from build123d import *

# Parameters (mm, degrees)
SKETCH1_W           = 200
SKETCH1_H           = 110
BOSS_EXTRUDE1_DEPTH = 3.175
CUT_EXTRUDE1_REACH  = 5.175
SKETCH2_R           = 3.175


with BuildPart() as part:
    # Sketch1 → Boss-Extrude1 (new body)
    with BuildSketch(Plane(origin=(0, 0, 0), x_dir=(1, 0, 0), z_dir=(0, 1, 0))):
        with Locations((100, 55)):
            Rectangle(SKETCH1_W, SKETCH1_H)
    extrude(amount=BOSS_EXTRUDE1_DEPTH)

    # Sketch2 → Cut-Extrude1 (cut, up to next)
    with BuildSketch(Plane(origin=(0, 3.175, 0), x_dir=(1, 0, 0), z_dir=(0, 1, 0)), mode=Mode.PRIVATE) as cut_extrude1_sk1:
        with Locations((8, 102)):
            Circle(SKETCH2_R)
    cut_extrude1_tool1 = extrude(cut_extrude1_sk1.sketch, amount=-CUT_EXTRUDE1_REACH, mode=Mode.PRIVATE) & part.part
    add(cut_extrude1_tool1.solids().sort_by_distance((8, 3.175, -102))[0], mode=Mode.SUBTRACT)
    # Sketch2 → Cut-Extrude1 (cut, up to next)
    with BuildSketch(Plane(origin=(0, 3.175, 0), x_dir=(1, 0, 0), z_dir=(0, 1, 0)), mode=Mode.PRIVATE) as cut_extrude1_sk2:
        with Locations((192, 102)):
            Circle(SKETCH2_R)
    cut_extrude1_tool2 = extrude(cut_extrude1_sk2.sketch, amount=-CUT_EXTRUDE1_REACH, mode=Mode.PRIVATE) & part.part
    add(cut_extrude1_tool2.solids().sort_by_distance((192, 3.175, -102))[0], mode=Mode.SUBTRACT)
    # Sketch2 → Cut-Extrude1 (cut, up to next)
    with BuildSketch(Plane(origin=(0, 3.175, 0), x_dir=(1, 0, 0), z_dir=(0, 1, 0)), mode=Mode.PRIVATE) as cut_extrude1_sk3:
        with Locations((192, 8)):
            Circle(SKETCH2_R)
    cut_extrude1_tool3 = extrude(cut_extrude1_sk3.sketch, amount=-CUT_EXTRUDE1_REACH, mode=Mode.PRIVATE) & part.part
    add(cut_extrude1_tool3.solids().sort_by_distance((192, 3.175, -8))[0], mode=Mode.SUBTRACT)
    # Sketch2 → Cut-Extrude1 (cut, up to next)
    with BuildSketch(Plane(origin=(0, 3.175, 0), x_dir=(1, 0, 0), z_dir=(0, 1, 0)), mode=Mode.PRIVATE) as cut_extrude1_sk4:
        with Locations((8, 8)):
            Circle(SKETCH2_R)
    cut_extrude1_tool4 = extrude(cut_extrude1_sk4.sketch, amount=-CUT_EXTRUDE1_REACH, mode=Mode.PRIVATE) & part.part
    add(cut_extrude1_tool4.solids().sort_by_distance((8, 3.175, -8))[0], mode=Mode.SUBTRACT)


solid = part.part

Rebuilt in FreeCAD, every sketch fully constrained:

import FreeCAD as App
import Part
import Sketcher

V = App.Vector
Q = App.Units.Quantity


def add_polygon(sketch, points):
    """Adds a closed chain of lines whose ends are joined by coincident constraints."""
    first, n = sketch.GeometryCount, len(points)
    for a, b in zip(points, points[1:] + points[:1]):
        sketch.addGeometry(Part.LineSegment(App.Vector(*a, 0), App.Vector(*b, 0)), False)
    for i in range(n):
        sketch.addConstraint(Sketcher.Constraint("Coincident", first + i, 2, first + (i + 1) % n, 1))

doc = App.newDocument("Part")
body = doc.addObject("PartDesign::Body", "Body")

# Sketch on XZ plane
sketch1 = doc.addObject("Sketcher::SketchObject", "Sketch")
body.addObject(sketch1)
sketch1.AttachmentSupport = (doc.XZ_Plane, [""])
sketch1.MapMode = "FlatFace"
add_polygon(sketch1, [(0, -110), (0, 0), (200, 0), (200, -110)])  # lines 0-3
sketch1.addConstraint([
    Sketcher.Constraint("Vertical", 0),
    Sketcher.Constraint("Horizontal", 1),
    Sketcher.Constraint("Vertical", 2),
    Sketcher.Constraint("Horizontal", 3),
    Sketcher.Constraint("Coincident", 0, 2, -1, 1),
    Sketcher.Constraint("DistanceX", 1, 1, 1, 2, Q("200 mm")),
    Sketcher.Constraint("DistanceY", 0, 1, 0, 2, Q("110 mm")),
])
pad1 = doc.addObject("PartDesign::Pad", "Pad")
body.addObject(pad1)
pad1.Profile = sketch1
pad1.Length = 3.175
pad1.Reversed = True

# Sketch on XZ plane
sketch2 = doc.addObject("Sketcher::SketchObject", "Sketch001")
body.addObject(sketch2)
sketch2.AttachmentSupport = (doc.XZ_Plane, [""])
sketch2.MapMode = "FlatFace"
sketch2.AttachmentOffset = App.Placement(V(0, 0, -3.175), App.Rotation())
sketch2.addGeometry(Part.Circle(V(8, -102, 0), V(0, 0, 1), 3.2), False)
sketch2.addConstraint([
    Sketcher.Constraint("Diameter", 0, Q("6.35 mm")),
    Sketcher.Constraint("DistanceX", -1, 1, 0, 3, Q("8 mm")),
    Sketcher.Constraint("DistanceY", 0, 3, -1, 1, Q("102 mm")),
])
pocket1 = doc.addObject("PartDesign::Pocket", "Pocket")
body.addObject(pocket1)
pocket1.Profile = sketch2
pocket1.Type = "UpToFirst"
pocket1.Reversed = True

# Sketch on XZ plane
sketch3 = doc.addObject("Sketcher::SketchObject", "Sketch002")
body.addObject(sketch3)
sketch3.AttachmentSupport = (doc.XZ_Plane, [""])
sketch3.MapMode = "FlatFace"
sketch3.AttachmentOffset = App.Placement(V(0, 0, -3.175), App.Rotation())
sketch3.addGeometry(Part.Circle(V(192, -102, 0), V(0, 0, 1), 3.2), False)
sketch3.addConstraint([
    Sketcher.Constraint("Diameter", 0, Q("6.35 mm")),
    Sketcher.Constraint("DistanceX", -1, 1, 0, 3, Q("192 mm")),
    Sketcher.Constraint("DistanceY", 0, 3, -1, 1, Q("102 mm")),
])
pocket2 = doc.addObject("PartDesign::Pocket", "Pocket001")
body.addObject(pocket2)
pocket2.Profile = sketch3
pocket2.Type = "UpToFirst"
pocket2.Reversed = True

# Sketch on XZ plane
sketch4 = doc.addObject("Sketcher::SketchObject", "Sketch003")
body.addObject(sketch4)
sketch4.AttachmentSupport = (doc.XZ_Plane, [""])
sketch4.MapMode = "FlatFace"
sketch4.AttachmentOffset = App.Placement(V(0, 0, -3.175), App.Rotation())
sketch4.addGeometry(Part.Circle(V(192, -8, 0), V(0, 0, 1), 3.2), False)
sketch4.addConstraint([
    Sketcher.Constraint("Diameter", 0, Q("6.35 mm")),
    Sketcher.Constraint("DistanceX", -1, 1, 0, 3, Q("192 mm")),
    Sketcher.Constraint("DistanceY", 0, 3, -1, 1, Q("8 mm")),
])
pocket3 = doc.addObject("PartDesign::Pocket", "Pocket002")
body.addObject(pocket3)
pocket3.Profile = sketch4
pocket3.Type = "UpToFirst"
pocket3.Reversed = True

# Sketch on XZ plane
sketch5 = doc.addObject("Sketcher::SketchObject", "Sketch004")
body.addObject(sketch5)
sketch5.AttachmentSupport = (doc.XZ_Plane, [""])
sketch5.MapMode = "FlatFace"
sketch5.AttachmentOffset = App.Placement(V(0, 0, -3.175), App.Rotation())
sketch5.addGeometry(Part.Circle(V(8, -8, 0), V(0, 0, 1), 3.2), False)
sketch5.addConstraint([
    Sketcher.Constraint("Diameter", 0, Q("6.35 mm")),
    Sketcher.Constraint("DistanceX", -1, 1, 0, 3, Q("8 mm")),
    Sketcher.Constraint("DistanceY", 0, 3, -1, 1, Q("8 mm")),
])
pocket4 = doc.addObject("PartDesign::Pocket", "Pocket003")
body.addObject(pocket4)
pocket4.Profile = sketch5
pocket4.Type = "UpToFirst"
pocket4.Reversed = True

doc.recompute()
